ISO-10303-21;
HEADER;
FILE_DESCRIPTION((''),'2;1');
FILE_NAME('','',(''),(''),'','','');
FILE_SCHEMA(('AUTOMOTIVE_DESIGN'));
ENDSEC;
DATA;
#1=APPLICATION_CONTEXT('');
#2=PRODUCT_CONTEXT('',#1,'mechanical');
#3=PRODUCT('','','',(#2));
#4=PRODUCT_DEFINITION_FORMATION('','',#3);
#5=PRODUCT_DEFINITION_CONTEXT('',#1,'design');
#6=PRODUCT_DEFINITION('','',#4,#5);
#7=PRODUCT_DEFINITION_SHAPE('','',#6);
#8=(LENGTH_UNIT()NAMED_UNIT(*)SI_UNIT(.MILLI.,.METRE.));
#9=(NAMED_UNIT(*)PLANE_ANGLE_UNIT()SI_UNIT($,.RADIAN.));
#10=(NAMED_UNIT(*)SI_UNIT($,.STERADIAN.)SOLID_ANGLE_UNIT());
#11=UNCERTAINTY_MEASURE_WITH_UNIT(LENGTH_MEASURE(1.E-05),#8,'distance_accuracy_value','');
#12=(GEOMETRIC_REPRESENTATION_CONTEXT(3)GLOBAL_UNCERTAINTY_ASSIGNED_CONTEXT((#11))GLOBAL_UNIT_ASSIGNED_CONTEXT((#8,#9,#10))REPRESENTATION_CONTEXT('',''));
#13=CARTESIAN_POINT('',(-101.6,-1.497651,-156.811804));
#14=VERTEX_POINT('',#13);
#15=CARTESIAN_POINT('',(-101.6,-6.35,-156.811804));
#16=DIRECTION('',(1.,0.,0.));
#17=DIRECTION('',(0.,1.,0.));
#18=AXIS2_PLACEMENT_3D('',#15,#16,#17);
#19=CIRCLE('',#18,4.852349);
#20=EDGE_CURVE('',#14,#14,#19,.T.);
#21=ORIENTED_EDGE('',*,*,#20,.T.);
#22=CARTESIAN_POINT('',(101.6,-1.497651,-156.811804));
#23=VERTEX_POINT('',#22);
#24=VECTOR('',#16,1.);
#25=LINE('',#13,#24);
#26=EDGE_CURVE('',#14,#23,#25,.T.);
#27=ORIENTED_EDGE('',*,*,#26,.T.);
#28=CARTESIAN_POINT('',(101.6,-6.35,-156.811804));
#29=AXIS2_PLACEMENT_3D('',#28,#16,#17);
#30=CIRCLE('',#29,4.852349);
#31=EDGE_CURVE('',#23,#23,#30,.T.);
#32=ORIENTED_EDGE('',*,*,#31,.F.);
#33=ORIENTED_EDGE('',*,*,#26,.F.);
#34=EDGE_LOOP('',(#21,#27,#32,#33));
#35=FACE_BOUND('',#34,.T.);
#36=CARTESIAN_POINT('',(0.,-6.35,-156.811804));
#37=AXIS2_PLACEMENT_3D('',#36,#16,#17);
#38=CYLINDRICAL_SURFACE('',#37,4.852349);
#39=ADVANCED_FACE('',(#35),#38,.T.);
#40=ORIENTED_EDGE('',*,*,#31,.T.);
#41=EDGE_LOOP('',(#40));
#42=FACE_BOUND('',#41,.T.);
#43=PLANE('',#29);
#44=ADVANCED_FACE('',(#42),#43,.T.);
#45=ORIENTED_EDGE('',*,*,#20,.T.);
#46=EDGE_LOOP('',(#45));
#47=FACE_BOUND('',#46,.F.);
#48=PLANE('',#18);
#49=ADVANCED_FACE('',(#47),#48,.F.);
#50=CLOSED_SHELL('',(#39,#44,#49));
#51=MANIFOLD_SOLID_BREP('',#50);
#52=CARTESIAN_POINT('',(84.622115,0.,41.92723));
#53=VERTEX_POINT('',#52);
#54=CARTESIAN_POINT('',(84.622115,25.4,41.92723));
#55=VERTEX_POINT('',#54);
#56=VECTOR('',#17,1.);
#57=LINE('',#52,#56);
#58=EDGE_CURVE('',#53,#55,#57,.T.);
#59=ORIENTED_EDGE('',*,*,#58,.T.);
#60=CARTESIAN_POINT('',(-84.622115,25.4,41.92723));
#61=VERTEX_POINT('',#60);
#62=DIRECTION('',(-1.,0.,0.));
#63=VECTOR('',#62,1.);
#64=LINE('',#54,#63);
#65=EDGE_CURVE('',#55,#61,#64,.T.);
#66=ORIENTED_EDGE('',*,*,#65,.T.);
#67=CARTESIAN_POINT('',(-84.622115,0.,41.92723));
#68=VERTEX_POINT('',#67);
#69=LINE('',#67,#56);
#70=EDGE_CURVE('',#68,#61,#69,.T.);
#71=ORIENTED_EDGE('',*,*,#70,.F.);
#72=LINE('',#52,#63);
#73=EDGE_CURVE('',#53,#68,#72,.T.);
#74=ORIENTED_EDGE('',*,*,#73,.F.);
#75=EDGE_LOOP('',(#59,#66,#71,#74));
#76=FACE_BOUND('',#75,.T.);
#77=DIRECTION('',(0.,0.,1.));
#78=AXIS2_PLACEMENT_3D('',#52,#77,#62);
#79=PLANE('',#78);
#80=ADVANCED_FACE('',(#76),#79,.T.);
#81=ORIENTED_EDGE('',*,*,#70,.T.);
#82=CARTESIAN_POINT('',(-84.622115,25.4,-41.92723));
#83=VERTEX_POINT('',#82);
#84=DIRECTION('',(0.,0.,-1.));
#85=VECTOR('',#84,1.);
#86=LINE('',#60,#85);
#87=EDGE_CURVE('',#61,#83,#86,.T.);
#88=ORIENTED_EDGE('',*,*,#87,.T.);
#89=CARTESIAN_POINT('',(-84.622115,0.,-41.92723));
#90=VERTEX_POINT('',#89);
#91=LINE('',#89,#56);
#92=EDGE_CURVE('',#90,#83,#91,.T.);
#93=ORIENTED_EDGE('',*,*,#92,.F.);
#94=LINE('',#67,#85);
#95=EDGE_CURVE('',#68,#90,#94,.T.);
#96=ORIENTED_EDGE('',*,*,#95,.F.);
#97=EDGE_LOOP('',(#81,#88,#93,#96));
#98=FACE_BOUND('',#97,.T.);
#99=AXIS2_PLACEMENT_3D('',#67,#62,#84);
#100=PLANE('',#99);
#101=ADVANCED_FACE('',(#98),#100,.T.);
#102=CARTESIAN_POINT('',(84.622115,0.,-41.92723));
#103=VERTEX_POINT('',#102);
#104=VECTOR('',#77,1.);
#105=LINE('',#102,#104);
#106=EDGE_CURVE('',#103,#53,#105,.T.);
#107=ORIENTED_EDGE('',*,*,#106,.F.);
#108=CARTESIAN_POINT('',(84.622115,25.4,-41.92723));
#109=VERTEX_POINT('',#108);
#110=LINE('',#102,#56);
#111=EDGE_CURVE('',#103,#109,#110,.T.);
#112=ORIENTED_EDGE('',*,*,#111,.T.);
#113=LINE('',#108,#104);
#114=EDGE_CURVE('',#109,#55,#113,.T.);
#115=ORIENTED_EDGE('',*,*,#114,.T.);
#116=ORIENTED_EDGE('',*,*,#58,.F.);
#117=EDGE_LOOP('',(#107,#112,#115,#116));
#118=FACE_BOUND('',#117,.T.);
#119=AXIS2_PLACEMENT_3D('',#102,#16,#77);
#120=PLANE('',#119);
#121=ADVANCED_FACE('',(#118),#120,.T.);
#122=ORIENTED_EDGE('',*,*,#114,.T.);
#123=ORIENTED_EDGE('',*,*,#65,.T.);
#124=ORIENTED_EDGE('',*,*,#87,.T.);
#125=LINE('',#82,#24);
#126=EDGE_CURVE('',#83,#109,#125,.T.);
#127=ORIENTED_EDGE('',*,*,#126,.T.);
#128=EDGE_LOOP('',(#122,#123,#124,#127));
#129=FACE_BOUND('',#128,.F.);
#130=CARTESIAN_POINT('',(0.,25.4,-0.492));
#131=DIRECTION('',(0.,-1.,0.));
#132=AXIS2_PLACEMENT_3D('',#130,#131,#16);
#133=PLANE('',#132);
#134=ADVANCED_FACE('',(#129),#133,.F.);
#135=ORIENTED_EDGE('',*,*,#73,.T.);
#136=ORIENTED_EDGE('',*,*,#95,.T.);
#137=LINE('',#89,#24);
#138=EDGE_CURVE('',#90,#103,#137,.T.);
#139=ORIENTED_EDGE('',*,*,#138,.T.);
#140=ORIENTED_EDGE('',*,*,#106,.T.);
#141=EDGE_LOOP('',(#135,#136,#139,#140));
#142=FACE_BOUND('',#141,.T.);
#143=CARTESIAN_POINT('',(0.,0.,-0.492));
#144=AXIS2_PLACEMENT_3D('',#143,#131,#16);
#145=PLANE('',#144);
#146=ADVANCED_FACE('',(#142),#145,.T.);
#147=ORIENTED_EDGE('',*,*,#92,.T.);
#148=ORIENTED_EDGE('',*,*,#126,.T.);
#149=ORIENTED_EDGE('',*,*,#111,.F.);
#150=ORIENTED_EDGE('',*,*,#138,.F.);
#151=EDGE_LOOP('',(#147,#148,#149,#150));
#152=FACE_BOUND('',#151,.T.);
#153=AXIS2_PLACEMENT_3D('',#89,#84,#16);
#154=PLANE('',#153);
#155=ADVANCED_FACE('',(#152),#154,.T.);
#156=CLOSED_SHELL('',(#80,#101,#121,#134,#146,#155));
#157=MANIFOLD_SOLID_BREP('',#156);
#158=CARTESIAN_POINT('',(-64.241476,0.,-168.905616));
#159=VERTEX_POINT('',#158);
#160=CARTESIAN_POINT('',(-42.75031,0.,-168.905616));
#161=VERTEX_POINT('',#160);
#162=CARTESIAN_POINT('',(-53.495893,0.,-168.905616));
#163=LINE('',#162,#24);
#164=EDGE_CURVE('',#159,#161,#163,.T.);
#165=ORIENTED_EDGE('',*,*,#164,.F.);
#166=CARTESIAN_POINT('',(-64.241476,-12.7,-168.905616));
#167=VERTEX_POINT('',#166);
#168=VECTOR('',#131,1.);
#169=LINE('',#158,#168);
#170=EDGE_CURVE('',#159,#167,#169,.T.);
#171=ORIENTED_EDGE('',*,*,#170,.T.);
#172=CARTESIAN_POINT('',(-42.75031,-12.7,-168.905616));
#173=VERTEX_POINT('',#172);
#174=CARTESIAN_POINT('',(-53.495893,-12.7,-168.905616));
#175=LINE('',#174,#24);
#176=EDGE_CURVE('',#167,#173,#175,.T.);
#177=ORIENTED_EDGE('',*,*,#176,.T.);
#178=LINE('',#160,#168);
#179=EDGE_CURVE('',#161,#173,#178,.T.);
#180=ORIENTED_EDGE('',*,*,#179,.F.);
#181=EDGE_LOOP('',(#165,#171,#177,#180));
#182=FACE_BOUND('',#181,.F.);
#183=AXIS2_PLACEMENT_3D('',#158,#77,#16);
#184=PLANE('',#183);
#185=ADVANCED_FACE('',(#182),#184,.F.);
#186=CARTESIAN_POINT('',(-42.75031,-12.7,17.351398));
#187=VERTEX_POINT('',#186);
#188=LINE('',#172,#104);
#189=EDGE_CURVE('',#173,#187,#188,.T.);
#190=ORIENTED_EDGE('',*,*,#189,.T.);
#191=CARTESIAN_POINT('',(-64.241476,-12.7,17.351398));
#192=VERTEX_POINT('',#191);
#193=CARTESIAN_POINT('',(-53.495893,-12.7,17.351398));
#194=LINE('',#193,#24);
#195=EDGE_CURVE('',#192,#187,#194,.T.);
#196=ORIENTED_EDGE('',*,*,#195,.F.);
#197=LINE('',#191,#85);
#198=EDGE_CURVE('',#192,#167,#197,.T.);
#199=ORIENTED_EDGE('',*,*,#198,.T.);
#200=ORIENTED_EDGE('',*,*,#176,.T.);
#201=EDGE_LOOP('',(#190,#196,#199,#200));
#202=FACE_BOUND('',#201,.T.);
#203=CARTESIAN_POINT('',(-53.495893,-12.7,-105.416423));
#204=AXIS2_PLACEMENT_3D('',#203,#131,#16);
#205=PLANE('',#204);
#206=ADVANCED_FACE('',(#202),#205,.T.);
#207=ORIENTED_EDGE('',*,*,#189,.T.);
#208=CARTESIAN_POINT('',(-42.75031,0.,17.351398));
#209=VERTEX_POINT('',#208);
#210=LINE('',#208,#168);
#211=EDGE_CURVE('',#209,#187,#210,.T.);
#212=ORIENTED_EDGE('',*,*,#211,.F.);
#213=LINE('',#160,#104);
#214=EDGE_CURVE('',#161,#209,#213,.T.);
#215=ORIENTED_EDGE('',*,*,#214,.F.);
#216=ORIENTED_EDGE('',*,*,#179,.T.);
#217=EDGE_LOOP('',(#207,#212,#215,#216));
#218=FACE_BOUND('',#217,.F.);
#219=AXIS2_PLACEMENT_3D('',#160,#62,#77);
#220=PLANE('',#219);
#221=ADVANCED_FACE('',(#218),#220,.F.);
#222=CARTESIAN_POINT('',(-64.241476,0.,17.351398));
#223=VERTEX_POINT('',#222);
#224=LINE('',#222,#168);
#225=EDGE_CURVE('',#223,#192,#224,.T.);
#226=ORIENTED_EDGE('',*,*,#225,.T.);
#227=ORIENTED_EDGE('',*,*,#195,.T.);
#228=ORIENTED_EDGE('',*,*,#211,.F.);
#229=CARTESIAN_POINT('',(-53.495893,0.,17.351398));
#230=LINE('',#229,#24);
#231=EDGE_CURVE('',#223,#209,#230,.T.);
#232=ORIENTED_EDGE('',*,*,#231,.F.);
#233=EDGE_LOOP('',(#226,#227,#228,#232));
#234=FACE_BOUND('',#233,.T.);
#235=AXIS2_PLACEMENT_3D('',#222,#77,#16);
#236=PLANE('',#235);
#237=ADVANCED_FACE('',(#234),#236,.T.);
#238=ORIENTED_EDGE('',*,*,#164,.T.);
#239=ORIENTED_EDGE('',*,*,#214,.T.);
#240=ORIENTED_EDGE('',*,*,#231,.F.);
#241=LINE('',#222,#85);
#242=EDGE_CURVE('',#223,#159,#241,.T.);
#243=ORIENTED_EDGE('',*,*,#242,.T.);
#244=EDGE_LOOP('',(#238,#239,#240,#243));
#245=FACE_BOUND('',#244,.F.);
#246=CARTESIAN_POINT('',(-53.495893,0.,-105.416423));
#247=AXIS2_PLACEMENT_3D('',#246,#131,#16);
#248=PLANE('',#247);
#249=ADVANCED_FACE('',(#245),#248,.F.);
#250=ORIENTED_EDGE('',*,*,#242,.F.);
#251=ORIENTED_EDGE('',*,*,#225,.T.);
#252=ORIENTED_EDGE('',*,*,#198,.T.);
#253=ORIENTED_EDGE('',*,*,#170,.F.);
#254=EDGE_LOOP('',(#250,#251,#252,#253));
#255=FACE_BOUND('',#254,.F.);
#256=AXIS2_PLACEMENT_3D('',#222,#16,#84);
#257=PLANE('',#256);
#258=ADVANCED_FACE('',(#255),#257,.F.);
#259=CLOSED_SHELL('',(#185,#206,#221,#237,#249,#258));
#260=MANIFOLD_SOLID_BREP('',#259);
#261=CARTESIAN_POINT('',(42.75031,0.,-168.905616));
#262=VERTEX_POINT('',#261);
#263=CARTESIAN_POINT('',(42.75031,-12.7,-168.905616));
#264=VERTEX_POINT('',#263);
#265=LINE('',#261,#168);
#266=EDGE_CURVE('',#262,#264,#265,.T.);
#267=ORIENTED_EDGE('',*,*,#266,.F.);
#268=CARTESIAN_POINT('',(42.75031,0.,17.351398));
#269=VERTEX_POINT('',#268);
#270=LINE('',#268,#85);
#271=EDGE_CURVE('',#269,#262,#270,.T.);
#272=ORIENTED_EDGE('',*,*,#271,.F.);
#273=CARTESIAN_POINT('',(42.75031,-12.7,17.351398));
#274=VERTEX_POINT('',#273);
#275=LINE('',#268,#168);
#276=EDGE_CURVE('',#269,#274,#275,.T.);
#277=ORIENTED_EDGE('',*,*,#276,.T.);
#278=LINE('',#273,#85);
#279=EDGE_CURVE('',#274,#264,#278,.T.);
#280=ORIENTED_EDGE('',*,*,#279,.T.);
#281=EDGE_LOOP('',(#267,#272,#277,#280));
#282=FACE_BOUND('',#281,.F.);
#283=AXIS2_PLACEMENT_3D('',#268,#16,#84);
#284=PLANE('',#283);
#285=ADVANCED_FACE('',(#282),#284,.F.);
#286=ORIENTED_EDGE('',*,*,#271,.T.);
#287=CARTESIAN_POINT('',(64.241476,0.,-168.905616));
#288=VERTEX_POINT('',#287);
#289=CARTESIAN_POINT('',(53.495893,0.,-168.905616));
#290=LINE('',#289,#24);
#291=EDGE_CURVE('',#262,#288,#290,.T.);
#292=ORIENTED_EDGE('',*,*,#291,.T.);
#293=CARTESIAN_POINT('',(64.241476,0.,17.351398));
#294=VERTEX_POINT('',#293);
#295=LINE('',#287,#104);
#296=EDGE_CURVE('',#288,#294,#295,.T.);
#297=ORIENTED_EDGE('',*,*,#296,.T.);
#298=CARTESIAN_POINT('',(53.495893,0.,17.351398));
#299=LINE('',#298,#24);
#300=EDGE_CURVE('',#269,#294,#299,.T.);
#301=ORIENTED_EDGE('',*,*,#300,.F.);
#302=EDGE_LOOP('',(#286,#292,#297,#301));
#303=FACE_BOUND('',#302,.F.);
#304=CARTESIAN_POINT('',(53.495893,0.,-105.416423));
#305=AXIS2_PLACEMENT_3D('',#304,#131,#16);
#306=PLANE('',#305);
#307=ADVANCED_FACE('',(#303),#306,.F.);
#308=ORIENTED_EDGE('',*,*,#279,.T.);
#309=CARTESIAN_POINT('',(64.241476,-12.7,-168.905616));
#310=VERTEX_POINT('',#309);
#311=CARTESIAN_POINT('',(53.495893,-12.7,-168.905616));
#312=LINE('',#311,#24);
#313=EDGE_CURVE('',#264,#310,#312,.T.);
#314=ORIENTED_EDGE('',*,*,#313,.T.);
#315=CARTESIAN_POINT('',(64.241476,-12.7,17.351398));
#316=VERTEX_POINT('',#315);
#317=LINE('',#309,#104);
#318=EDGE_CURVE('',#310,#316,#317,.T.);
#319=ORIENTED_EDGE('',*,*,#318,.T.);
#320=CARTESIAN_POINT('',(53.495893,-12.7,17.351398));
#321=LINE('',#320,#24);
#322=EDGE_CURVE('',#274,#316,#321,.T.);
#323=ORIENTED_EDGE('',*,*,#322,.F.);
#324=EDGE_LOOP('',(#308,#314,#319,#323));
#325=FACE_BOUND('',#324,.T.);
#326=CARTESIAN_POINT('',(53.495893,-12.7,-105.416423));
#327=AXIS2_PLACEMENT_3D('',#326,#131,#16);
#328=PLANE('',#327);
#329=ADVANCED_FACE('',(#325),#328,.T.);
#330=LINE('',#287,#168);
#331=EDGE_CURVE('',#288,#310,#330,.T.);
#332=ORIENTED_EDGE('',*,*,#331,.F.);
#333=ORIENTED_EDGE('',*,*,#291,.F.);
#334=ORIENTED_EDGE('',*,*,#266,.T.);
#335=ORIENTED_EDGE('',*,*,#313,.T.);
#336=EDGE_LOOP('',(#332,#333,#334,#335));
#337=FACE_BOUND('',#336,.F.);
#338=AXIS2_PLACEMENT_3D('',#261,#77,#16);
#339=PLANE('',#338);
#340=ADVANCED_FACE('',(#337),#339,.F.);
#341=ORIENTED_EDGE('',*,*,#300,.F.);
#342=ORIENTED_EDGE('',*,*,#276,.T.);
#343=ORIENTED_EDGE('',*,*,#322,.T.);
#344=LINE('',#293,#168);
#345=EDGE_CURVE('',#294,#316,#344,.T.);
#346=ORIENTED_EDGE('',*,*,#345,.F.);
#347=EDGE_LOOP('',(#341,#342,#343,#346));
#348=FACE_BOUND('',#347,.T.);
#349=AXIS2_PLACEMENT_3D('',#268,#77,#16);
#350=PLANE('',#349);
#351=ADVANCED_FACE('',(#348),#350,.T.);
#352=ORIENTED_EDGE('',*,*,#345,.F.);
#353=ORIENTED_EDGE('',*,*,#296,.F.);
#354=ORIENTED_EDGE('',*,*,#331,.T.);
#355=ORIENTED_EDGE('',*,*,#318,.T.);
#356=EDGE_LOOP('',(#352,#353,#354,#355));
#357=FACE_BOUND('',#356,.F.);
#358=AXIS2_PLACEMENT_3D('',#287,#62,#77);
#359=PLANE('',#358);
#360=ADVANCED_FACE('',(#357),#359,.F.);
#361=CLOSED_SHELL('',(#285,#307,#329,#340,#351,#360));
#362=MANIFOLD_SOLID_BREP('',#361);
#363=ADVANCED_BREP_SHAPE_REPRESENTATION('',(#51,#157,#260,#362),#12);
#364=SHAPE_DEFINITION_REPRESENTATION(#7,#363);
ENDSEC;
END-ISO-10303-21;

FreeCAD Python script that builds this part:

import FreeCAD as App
import Part
import Sketcher

V = App.Vector
Q = App.Units.Quantity


def add_polygon(sketch, points):
    """Adds a closed chain of lines whose ends are joined by coincident constraints."""
    first, n = sketch.GeometryCount, len(points)
    for a, b in zip(points, points[1:] + points[:1]):
        sketch.addGeometry(Part.LineSegment(App.Vector(*a, 0), App.Vector(*b, 0)), False)
    for i in range(n):
        sketch.addConstraint(Sketcher.Constraint("Coincident", first + i, 2, first + (i + 1) % n, 1))

doc = App.newDocument("Part")
body = doc.addObject("PartDesign::Body", "Body")

sketch1 = doc.addObject("Sketcher::SketchObject", "Sketch")
body.addObject(sketch1)
sketch1.AttachmentSupport = (doc.XZ_Plane, [""])
sketch1.MapMode = "FlatFace"
add_polygon(sketch1, [(85, 42), (-85, 42), (-85, -42), (85, -42)])
sketch1.addConstraint([
    Sketcher.Constraint("Horizontal", 0),
    Sketcher.Constraint("Vertical", 1),
    Sketcher.Constraint("Horizontal", 2),
    Sketcher.Constraint("Vertical", 3),
    Sketcher.Constraint("Symmetric", 0, 2, 2, 2, -1, 1),
    Sketcher.Constraint("DistanceX", 0, 2, 0, 1, Q("169.24423 mm")),
    Sketcher.Constraint("DistanceY", 1, 2, 1, 1, Q("83.854459 mm")),
])
pad1 = doc.addObject("PartDesign::Pad", "Pad")
body.addObject(pad1)
pad1.Profile = sketch1
pad1.Length = Q("1 in")
pad1.Reversed = True
body2 = doc.addObject("PartDesign::Body", "Body001")

sketch2 = doc.addObject("Sketcher::SketchObject", "Sketch001")
body2.addObject(sketch2)
sketch2.AttachmentSupport = (doc.getObject("XZ_Plane001"), [""])
sketch2.MapMode = "FlatFace"
add_polygon(sketch2, [(-64, -169), (-43, -169), (-43, 17), (-64, 17)])
sketch2.addConstraint([
    Sketcher.Constraint("Horizontal", 0),
    Sketcher.Constraint("Vertical", 1),
    Sketcher.Constraint("Horizontal", 2),
    Sketcher.Constraint("Vertical", 3),
    Sketcher.Constraint("DistanceY", -1, 1, 1, 2, Q("17.351398 mm")),
    Sketcher.Constraint("DistanceX", 0, 1, 0, 2, Q("21.491166 mm")),
    Sketcher.Constraint("DistanceY", 1, 1, 1, 2, Q("186.257014 mm")),
    Sketcher.Constraint("DistanceX", 0, 2, -1, 1, Q("42.75031 mm")),
])
pad2 = doc.addObject("PartDesign::Pad", "Pad001")
body2.addObject(pad2)
pad2.Profile = sketch2
pad2.Length = Q("0.5 in")
body3 = doc.addObject("PartDesign::Body", "Body002")

sketch3 = doc.addObject("Sketcher::SketchObject", "Sketch002")
body3.addObject(sketch3)
sketch3.AttachmentSupport = (doc.getObject("XZ_Plane002"), [""])
sketch3.MapMode = "FlatFace"
add_polygon(sketch3, [(43, -169), (64, -169), (64, 17), (43, 17)])
sketch3.addConstraint([
    Sketcher.Constraint("Horizontal", 0),
    Sketcher.Constraint("Vertical", 1),
    Sketcher.Constraint("Horizontal", 2),
    Sketcher.Constraint("Vertical", 3),
    Sketcher.Constraint("DistanceY", -1, 1, 1, 2, Q("17.351398 mm")),
    Sketcher.Constraint("DistanceX", 0, 1, 0, 2, Q("21.491166 mm")),
    Sketcher.Constraint("DistanceY", 1, 1, 1, 2, Q("186.257014 mm")),
    Sketcher.Constraint("DistanceX", -1, 1, 2, 2, Q("42.75031 mm")),
])
pad3 = doc.addObject("PartDesign::Pad", "Pad002")
body3.addObject(pad3)
pad3.Profile = sketch3
pad3.Length = Q("0.5 in")
body4 = doc.addObject("PartDesign::Body", "Body003")

sketch4 = doc.addObject("Sketcher::SketchObject", "Sketch003")
body4.addObject(sketch4)
sketch4.AttachmentSupport = (doc.getObject("YZ_Plane003"), [""])
sketch4.MapMode = "FlatFace"
sketch4.addGeometry(Part.Circle(V(-6.3, -156.8, 0), V(0, 0, 1), 4.9), False)
sketch4.addConstraint([
    Sketcher.Constraint("DistanceX", 0, 3, -1, 1, Q("0.25 in")),
    Sketcher.Constraint("Diameter", 0, Q("9.704697 mm")),
    Sketcher.Constraint("DistanceY", 0, 3, -1, 1, Q("156.811804 mm")),
])
pad4 = doc.addObject("PartDesign::Pad", "Pad003")
body4.addObject(pad4)
pad4.Profile = sketch4
pad4.Length = Q("8 in")
pad4.Midplane = True

doc.recompute()
